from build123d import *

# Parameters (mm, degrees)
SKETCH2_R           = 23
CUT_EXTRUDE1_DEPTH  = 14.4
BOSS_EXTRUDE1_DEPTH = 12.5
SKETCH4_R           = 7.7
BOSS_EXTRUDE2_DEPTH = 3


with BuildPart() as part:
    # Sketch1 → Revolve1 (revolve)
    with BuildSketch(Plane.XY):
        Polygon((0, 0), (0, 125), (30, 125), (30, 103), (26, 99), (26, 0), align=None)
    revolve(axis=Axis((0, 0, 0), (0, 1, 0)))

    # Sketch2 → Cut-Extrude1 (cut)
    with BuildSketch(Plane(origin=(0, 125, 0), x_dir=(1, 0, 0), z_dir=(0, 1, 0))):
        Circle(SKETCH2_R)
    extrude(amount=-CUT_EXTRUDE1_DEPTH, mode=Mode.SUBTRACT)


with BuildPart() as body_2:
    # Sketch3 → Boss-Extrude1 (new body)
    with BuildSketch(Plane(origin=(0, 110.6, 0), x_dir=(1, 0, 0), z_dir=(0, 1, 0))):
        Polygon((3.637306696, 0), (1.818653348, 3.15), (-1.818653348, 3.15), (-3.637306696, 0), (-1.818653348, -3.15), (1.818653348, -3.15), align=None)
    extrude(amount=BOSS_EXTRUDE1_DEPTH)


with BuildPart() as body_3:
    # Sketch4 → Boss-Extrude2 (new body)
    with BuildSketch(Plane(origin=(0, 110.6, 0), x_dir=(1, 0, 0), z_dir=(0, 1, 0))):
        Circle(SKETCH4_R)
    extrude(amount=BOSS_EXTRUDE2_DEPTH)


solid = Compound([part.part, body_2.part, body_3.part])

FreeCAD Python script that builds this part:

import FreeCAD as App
import Part
import Sketcher
Q = App.Units.Quantity


def add_polygon(sketch, points):
    """Adds a closed chain of lines whose ends are joined by coincident constraints."""
    first, n = sketch.GeometryCount, len(points)
    for a, b in zip(points, points[1:] + points[:1]):
        sketch.addGeometry(Part.LineSegment(App.Vector(*a, 0), App.Vector(*b, 0)), False)
    for i in range(n):
        sketch.addConstraint(Sketcher.Constraint("Coincident", first + i, 2, first + (i + 1) % n, 1))

doc = App.newDocument("Part")
body = doc.addObject("PartDesign::Body", "Body")

# Sketch on XY plane
sketch1 = doc.addObject("Sketcher::SketchObject", "Sketch")
body.addObject(sketch1)
sketch1.AttachmentSupport = (doc.XY_Plane, [""])
sketch1.MapMode = "FlatFace"
add_polygon(sketch1, [(0, 125), (0, 0), (26, 0), (26, 99), (30, 103), (30, 125)])  # lines 0-5
sketch1.addConstraint(Sketcher.Constraint("Vertical", 0))
sketch1.addConstraint(Sketcher.Constraint("Horizontal", 1))
sketch1.addConstraint(Sketcher.Constraint("Vertical", 2))
sketch1.addConstraint(Sketcher.Constraint("Vertical", 4))
sketch1.addConstraint(Sketcher.Constraint("Horizontal", 5))
sketch1.addConstraint(Sketcher.Constraint("Coincident", 0, 2, -1, 1))
sketch1.addConstraint(Sketcher.Constraint("DistanceX", 1, 1, 1, 2, Q("26 mm")))
sketch1.addConstraint(Sketcher.Constraint("DistanceX", 5, 2, 5, 1, Q("30 mm")))
sketch1.addConstraint(Sketcher.Constraint("DistanceY", 0, 2, 0, 1, Q("125 mm")))
sketch1.addConstraint(Sketcher.Constraint("DistanceY", 2, 1, 2, 2, Q("99 mm")))
sketch1.addConstraint(Sketcher.Constraint("DistanceY", 4, 1, 4, 2, Q("22 mm")))
revolution = doc.addObject("PartDesign::Revolution", "Revolution")
body.addObject(revolution)
revolution.Profile = sketch1
revolution.ReferenceAxis = (sketch1, ["V_Axis"])
revolution.Angle = 360

# Sketch on XZ plane
sketch2 = doc.addObject("Sketcher::SketchObject", "Sketch001")
body.addObject(sketch2)
sketch2.AttachmentSupport = (doc.XZ_Plane, [""])
sketch2.MapMode = "FlatFace"
sketch2.AttachmentOffset = App.Placement(App.Vector(0, 0, -125), App.Rotation())
sketch2.addGeometry(Part.Circle(App.Vector(0, 0, 0), App.Vector(0, 0, 1), 23), False)
sketch2.addConstraint(Sketcher.Constraint("Coincident", 0, 3, -1, 1))
sketch2.addConstraint(Sketcher.Constraint("Diameter", 0, Q("46 mm")))
pocket1 = doc.addObject("PartDesign::Pocket", "Pocket")
body.addObject(pocket1)
pocket1.Profile = sketch2
pocket1.Length = 14.4
pocket1.Reversed = True
body2 = doc.addObject("PartDesign::Body", "Body001")

# Sketch on XZ plane
sketch3 = doc.addObject("Sketcher::SketchObject", "Sketch002")
body2.addObject(sketch3)
sketch3.AttachmentSupport = (doc.getObject("XZ_Plane001"), [""])
sketch3.MapMode = "FlatFace"
sketch3.AttachmentOffset = App.Placement(App.Vector(0, 0, -110.6), App.Rotation())
add_polygon(sketch3, [(3.6, 0), (1.8, -3.1), (-1.8, -3.1), (-3.6, 0), (-1.8, 3.1), (1.8, 3.1)])  # lines 0-5
sketch3.addConstraint(Sketcher.Constraint("Horizontal", 1))
sketch3.addConstraint(Sketcher.Constraint("Horizontal", 4))
sketch3.addConstraint(Sketcher.Constraint("Symmetric", 0, 2, 3, 2, -1, 1))
sketch3.addConstraint(Sketcher.Constraint("Symmetric", 2, 2, 5, 2, -1, 1))
sketch3.addConstraint(Sketcher.Constraint("PointOnObject", 2, 2, -1))
sketch3.addConstraint(Sketcher.Constraint("Parallel", 2, 5))
sketch3.addConstraint(Sketcher.Constraint("Vertical", 1, 2, 3, 2))
sketch3.addConstraint(Sketcher.Constraint("Angle", 0, Q("-120 deg")))
sketch3.addConstraint(Sketcher.Constraint("DistanceY", 1, 2, 3, 2, Q("6.3 mm")))
sketch3.addConstraint(Sketcher.Constraint("DistanceX", 1, 2, 1, 1, Q("3.637307 mm")))
pad1 = doc.addObject("PartDesign::Pad", "Pad")
body2.addObject(pad1)
pad1.Profile = sketch3
pad1.Length = 12.5
pad1.Reversed = True
body3 = doc.addObject("PartDesign::Body", "Body002")

# Sketch on XZ plane
sketch4 = doc.addObject("Sketcher::SketchObject", "Sketch003")
body3.addObject(sketch4)
sketch4.AttachmentSupport = (doc.getObject("XZ_Plane002"), [""])
sketch4.MapMode = "FlatFace"
sketch4.AttachmentOffset = App.Placement(App.Vector(0, 0, -110.6), App.Rotation())
sketch4.addGeometry(Part.Circle(App.Vector(0, 0, 0), App.Vector(0, 0, 1), 8), False)
sketch4.addConstraint(Sketcher.Constraint("Coincident", 0, 3, -1, 1))
sketch4.addConstraint(Sketcher.Constraint("Diameter", 0, Q("15.4 mm")))
pad2 = doc.addObject("PartDesign::Pad", "Pad001")
body3.addObject(pad2)
pad2.Profile = sketch4
pad2.Length = 3
pad2.Reversed = True

doc.recompute()
